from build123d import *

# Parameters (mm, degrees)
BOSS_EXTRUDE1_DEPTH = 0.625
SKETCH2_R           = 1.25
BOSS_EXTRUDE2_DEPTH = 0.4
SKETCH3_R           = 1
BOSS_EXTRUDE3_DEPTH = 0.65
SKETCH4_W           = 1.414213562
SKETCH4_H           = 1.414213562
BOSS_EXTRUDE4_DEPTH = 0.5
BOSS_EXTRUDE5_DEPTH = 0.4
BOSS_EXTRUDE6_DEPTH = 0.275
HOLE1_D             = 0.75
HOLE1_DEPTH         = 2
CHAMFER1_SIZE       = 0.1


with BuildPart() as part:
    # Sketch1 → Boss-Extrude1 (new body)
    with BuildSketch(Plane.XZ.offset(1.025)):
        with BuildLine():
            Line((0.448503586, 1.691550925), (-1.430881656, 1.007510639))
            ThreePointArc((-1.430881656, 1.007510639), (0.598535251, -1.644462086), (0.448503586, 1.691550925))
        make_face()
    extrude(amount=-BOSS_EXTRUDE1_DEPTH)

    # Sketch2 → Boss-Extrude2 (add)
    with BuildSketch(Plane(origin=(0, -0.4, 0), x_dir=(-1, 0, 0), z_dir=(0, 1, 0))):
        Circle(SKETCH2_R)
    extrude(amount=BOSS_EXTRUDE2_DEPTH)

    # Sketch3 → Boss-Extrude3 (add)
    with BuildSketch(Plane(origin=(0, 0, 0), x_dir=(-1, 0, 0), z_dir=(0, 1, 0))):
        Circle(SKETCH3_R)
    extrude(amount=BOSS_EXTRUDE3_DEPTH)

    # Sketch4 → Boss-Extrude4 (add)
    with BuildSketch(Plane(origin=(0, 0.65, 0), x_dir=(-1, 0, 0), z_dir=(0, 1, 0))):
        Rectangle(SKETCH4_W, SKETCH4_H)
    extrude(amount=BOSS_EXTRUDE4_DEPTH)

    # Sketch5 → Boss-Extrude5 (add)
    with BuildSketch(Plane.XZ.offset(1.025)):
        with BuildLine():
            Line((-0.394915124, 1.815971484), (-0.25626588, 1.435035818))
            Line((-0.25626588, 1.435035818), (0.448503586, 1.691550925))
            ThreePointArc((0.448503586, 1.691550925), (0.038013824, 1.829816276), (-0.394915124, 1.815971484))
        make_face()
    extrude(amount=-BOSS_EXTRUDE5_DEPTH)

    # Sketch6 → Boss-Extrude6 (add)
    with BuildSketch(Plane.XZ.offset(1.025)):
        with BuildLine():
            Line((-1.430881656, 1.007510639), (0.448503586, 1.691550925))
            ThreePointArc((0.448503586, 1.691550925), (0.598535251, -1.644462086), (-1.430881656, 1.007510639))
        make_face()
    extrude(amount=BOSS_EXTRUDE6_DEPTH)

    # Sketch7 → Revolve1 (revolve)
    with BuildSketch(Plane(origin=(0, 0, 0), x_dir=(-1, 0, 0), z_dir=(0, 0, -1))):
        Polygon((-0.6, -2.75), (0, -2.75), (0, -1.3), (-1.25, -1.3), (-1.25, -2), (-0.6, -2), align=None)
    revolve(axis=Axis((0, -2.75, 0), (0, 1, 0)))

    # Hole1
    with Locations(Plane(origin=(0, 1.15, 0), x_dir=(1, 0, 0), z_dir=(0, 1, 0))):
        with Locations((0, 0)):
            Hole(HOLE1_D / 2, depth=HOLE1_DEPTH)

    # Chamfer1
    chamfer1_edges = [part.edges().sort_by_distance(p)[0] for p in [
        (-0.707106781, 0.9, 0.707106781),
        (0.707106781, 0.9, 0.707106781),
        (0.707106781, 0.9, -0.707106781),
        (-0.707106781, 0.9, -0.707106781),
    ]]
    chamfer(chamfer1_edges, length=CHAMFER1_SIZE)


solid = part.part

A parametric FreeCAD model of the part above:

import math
import FreeCAD as App
import Part
import Sketcher
Q = App.Units.Quantity


def edges_at(feature, points):
    """Names of the edges that pass closest to the given points."""
    edges = feature.Shape.Edges
    near = lambda p: min(range(len(edges)), key=lambda i: edges[i].distToShape(Part.Vertex(*p))[0])
    return sorted({f"Edge{near(p) + 1}" for p in points})


def add_polygon(sketch, points):
    """Adds a closed chain of lines whose ends are joined by coincident constraints."""
    first, n = sketch.GeometryCount, len(points)
    for a, b in zip(points, points[1:] + points[:1]):
        sketch.addGeometry(Part.LineSegment(App.Vector(*a, 0), App.Vector(*b, 0)), False)
    for i in range(n):
        sketch.addConstraint(Sketcher.Constraint("Coincident", first + i, 2, first + (i + 1) % n, 1))

doc = App.newDocument("Part")
body = doc.addObject("PartDesign::Body", "Body")

sketch1 = body.newObject("Sketcher::SketchObject", "Sketch")
sketch1.AttachmentSupport = (doc.getObject("XZ_Plane"), [""])
sketch1.MapMode = "FlatFace"
sketch1.AttachmentOffset = App.Placement(App.Vector(0, 0, 1.025), App.Rotation())
sketch1.addGeometry(Part.LineSegment(App.Vector(0.4, 1.7, 0), App.Vector(-1.4, 1, 0)), False)
sketch1.addGeometry(Part.ArcOfCircle(Part.Circle(App.Vector(0, 0, 0), App.Vector(0, 0, 1), 1.8), math.radians(145), math.radians(435)), False)
sketch1.addConstraint(Sketcher.Constraint("Coincident", 0, 1, 1, 2))
sketch1.addConstraint(Sketcher.Constraint("Coincident", 1, 1, 0, 2))
sketch1.addConstraint(Sketcher.Constraint("Coincident", 1, 3, -1, 1))
sketch1.addConstraint(Sketcher.Constraint("Angle", 0, Q("-160 deg")))
sketch1.addConstraint(Sketcher.Constraint("Radius", 1, Q("1.75 mm")))
sketch1.addConstraint(Sketcher.Constraint("Distance", 0, Q("2 mm")))
pad1 = body.newObject("PartDesign::Pad", "Pad")
pad1.Profile = sketch1
pad1.Length = 0.625
pad1.Reversed = True

sketch2 = body.newObject("Sketcher::SketchObject", "Sketch001")
sketch2.AttachmentSupport = (doc.getObject("XZ_Plane"), [""])
sketch2.MapMode = "FlatFace"
sketch2.AttachmentOffset = App.Placement(App.Vector(0, 0, 0.4), App.Rotation())
sketch2.addGeometry(Part.Circle(App.Vector(0, 0, 0), App.Vector(0, 0, 1), 1.2), False)
sketch2.addConstraint(Sketcher.Constraint("Coincident", 0, 3, -1, 1))
sketch2.addConstraint(Sketcher.Constraint("Diameter", 0, Q("2.5 mm")))
pad2 = body.newObject("PartDesign::Pad", "Pad001")
pad2.Profile = sketch2
pad2.Length = 0.4
pad2.Reversed = True

sketch3 = body.newObject("Sketcher::SketchObject", "Sketch002")
sketch3.AttachmentSupport = (doc.getObject("XZ_Plane"), [""])
sketch3.MapMode = "FlatFace"
sketch3.addGeometry(Part.Circle(App.Vector(0, 0, 0), App.Vector(0, 0, 1), 1), False)
sketch3.addConstraint(Sketcher.Constraint("Coincident", 0, 3, -1, 1))
sketch3.addConstraint(Sketcher.Constraint("Diameter", 0, Q("2 mm")))
pad3 = body.newObject("PartDesign::Pad", "Pad002")
pad3.Profile = sketch3
pad3.Length = 0.65
pad3.Reversed = True

sketch4 = body.newObject("Sketcher::SketchObject", "Sketch003")
sketch4.AttachmentSupport = (doc.getObject("XZ_Plane"), [""])
sketch4.MapMode = "FlatFace"
sketch4.AttachmentOffset = App.Placement(App.Vector(0, 0, -0.65), App.Rotation())
add_polygon(sketch4, [(0.7, 0.7), (0.7, -0.7), (-0.7, -0.7), (-0.7, 0.7)])
sketch4.addConstraint(Sketcher.Constraint("Vertical", 0))
sketch4.addConstraint(Sketcher.Constraint("Horizontal", 1))
sketch4.addConstraint(Sketcher.Constraint("Vertical", 2))
sketch4.addConstraint(Sketcher.Constraint("Horizontal", 3))
sketch4.addConstraint(Sketcher.Constraint("Symmetric", 0, 2, 2, 2, -1, 1))
sketch4.addConstraint(Sketcher.Constraint("Equal", 3, 0))
sketch4.addConstraint(Sketcher.Constraint("DistanceX", 1, 2, 1, 1, Q("1.414214 mm")))
pad4 = body.newObject("PartDesign::Pad", "Pad003")
pad4.Profile = sketch4
pad4.Length = 0.5
pad4.Reversed = True

sketch5 = body.newObject("Sketcher::SketchObject", "Sketch004")
sketch5.AttachmentSupport = (doc.getObject("XZ_Plane"), [""])
sketch5.MapMode = "FlatFace"
sketch5.AttachmentOffset = App.Placement(App.Vector(0, 0, 1.025), App.Rotation())
sketch5.addGeometry(Part.LineSegment(App.Vector(-0.39, 1.82, 0), App.Vector(-0.26, 1.44, 0)), False)
sketch5.addGeometry(Part.LineSegment(App.Vector(-0.26, 1.44, 0), App.Vector(0.45, 1.69, 0)), False)
sketch5.addGeometry(Part.ArcOfCircle(Part.Circle(App.Vector(-0.14, 0.62, 0), App.Vector(0, 0, 1), 1.22), math.radians(61), math.radians(102)), False)
sketch5.addConstraint(Sketcher.Constraint("Coincident", 0, 2, 1, 1))
sketch5.addConstraint(Sketcher.Constraint("Coincident", 1, 2, 2, 1))
sketch5.addConstraint(Sketcher.Constraint("Coincident", 2, 2, 0, 1))
sketch5.addConstraint(Sketcher.Constraint("Perpendicular", 0, 1))
sketch5.addConstraint(Sketcher.Constraint("Angle", 0, Q("-70 deg")))
sketch5.addConstraint(Sketcher.Constraint("Distance", 1, Q("0.75 mm")))
sketch5.addConstraint(Sketcher.Constraint("Radius", 2, Q("1.220237 mm")))
sketch5.addConstraint(Sketcher.Constraint("DistanceX", 0, 2, 2, 3, Q("0.116198 mm")))
sketch5.addConstraint(Sketcher.Constraint("DistanceY", -1, 1, 1, 2, Q("1.691551 mm")))
sketch5.addConstraint(Sketcher.Constraint("DistanceX", 2, 3, -1, 1, Q("0.140067 mm")))
pad5 = body.newObject("PartDesign::Pad", "Pad004")
pad5.Profile = sketch5
pad5.Length = 0.4
pad5.Reversed = True

sketch6 = body.newObject("Sketcher::SketchObject", "Sketch005")
sketch6.AttachmentSupport = (doc.getObject("XZ_Plane"), [""])
sketch6.MapMode = "FlatFace"
sketch6.AttachmentOffset = App.Placement(App.Vector(0, 0, 1.025), App.Rotation())
sketch6.addGeometry(Part.LineSegment(App.Vector(0.4, 1.7, 0), App.Vector(-1.4, 1, 0)), False)
sketch6.addGeometry(Part.ArcOfCircle(Part.Circle(App.Vector(0, 0, 0), App.Vector(0, 0, 1), 1.8), math.radians(145), math.radians(435)), False)
sketch6.addConstraint(Sketcher.Constraint("Coincident", 0, 1, 1, 2))
sketch6.addConstraint(Sketcher.Constraint("Coincident", 1, 1, 0, 2))
sketch6.addConstraint(Sketcher.Constraint("Coincident", 1, 3, -1, 1))
sketch6.addConstraint(Sketcher.Constraint("Angle", 0, Q("-160 deg")))
sketch6.addConstraint(Sketcher.Constraint("Radius", 1, Q("1.75 mm")))
sketch6.addConstraint(Sketcher.Constraint("Distance", 0, Q("2 mm")))
pad6 = body.newObject("PartDesign::Pad", "Pad005")
pad6.Profile = sketch6
pad6.Length = 0.275

sketch7 = body.newObject("Sketcher::SketchObject", "Sketch006")
sketch7.AttachmentSupport = (doc.getObject("XY_Plane"), [""])
sketch7.MapMode = "FlatFace"
add_polygon(sketch7, [(0.6, -2.8), (0, -2.8), (0, -1.3), (1.2, -1.3), (1.2, -2), (0.6, -2)])
sketch7.addConstraint(Sketcher.Constraint("Horizontal", 0))
sketch7.addConstraint(Sketcher.Constraint("Vertical", 1))
sketch7.addConstraint(Sketcher.Constraint("Horizontal", 2))
sketch7.addConstraint(Sketcher.Constraint("Vertical", 3))
sketch7.addConstraint(Sketcher.Constraint("Horizontal", 4))
sketch7.addConstraint(Sketcher.Constraint("Vertical", 5))
sketch7.addConstraint(Sketcher.Constraint("PointOnObject", 0, 2, -2))
sketch7.addConstraint(Sketcher.Constraint("DistanceX", 0, 2, 0, 1, Q("0.6 mm")))
sketch7.addConstraint(Sketcher.Constraint("DistanceY", 3, 2, 3, 1, Q("0.7 mm")))
sketch7.addConstraint(Sketcher.Constraint("DistanceY", 3, 2, -1, 1, Q("2 mm")))
sketch7.addConstraint(Sketcher.Constraint("DistanceX", 2, 1, 2, 2, Q("1.25 mm")))
sketch7.addConstraint(Sketcher.Constraint("DistanceY", 1, 1, 1, 2, Q("1.45 mm")))
revolution = body.newObject("PartDesign::Revolution", "Revolution")
revolution.Profile = sketch7
revolution.ReferenceAxis = (sketch7, ["V_Axis"])
revolution.Angle = 360

sketch8 = body.newObject("Sketcher::SketchObject", "Sketch007")
sketch8.AttachmentSupport = (doc.getObject("XZ_Plane"), [""])
sketch8.MapMode = "FlatFace"
sketch8.AttachmentOffset = App.Placement(App.Vector(0, 0, -1.15), App.Rotation())
sketch8.addGeometry(Part.Circle(App.Vector(0, 0, 0), App.Vector(0, 0, 1), 0.38), False)
sketch8.addConstraint(Sketcher.Constraint("Coincident", 0, 3, -1, 1))
sketch8.addConstraint(Sketcher.Constraint("Diameter", 0, Q("0.75 mm")))
doc.recompute()
hole = body.newObject("PartDesign::Hole", "Hole")
hole.Profile = sketch8
hole.ThreadType = "None"
hole.Diameter = 0.75
hole.DepthType = "Dimension"
hole.Depth = 2
hole.DrillPoint = "Flat"
hole.Reversed = True
doc.recompute()

chamfer = body.newObject("PartDesign::Chamfer", "Chamfer")
chamfer.Base = (hole, edges_at(hole, [
    (-0.707, 0.9, 0.707),
    (0.707, 0.9, 0.707),
    (0.707, 0.9, -0.707),
    (-0.707, 0.9, -0.707),
]))
chamfer.Size = 0.1

doc.recompute()
